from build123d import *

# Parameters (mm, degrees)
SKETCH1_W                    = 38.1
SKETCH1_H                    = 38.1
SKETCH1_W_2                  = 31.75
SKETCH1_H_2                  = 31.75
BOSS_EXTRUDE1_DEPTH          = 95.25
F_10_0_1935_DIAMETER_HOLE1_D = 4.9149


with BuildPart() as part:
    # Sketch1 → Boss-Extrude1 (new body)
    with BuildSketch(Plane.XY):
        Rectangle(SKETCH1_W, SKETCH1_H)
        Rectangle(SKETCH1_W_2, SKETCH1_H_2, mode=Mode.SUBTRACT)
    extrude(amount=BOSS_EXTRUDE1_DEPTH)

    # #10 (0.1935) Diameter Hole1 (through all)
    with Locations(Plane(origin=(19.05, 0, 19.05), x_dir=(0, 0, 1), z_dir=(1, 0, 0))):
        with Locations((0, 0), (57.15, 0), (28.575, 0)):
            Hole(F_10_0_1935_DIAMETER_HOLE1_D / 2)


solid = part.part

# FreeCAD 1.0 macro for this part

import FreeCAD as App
import Part
import Sketcher

V = App.Vector
Q = App.Units.Quantity


def add_polygon(sketch, points):
    """Adds a closed chain of lines whose ends are joined by coincident constraints."""
    first, n = sketch.GeometryCount, len(points)
    for a, b in zip(points, points[1:] + points[:1]):
        sketch.addGeometry(Part.LineSegment(App.Vector(*a, 0), App.Vector(*b, 0)), False)
    for i in range(n):
        sketch.addConstraint(Sketcher.Constraint("Coincident", first + i, 2, first + (i + 1) % n, 1))

doc = App.newDocument("Part")
params = doc.addObject("Spreadsheet::Sheet", "Params")
for row, (alias, value) in enumerate([
    ("sketch1_width", "1.5 in"),
    ("sketch1_width2", "1.25 in"),
    ("pad1_length", "3.75 in"),
    ("hole_diameter", "0.1935 in"),
], start=1):
    params.set(f"A{row}", alias)
    params.set(f"B{row}", "=" + value)
    params.setAlias(f"B{row}", alias)

body = doc.addObject("PartDesign::Body", "Body")

# Sketch on XY plane
sketch1 = body.newObject("Sketcher::SketchObject", "Sketch")
sketch1.AttachmentSupport = (doc.getObject("XY_Plane"), [""])
sketch1.MapMode = "FlatFace"
add_polygon(sketch1, [(-19, 19), (-19, -19), (19, -19), (19, 19)])  # lines 0-3
add_polygon(sketch1, [(16, -16), (-16, -16), (-16, 16), (16, 16)])  # lines 4-7
sketch1.addConstraint(Sketcher.Constraint("Vertical", 0))
sketch1.addConstraint(Sketcher.Constraint("Horizontal", 1))
sketch1.addConstraint(Sketcher.Constraint("Vertical", 2))
sketch1.addConstraint(Sketcher.Constraint("Horizontal", 3))
sketch1.addConstraint(Sketcher.Constraint("Horizontal", 4))
sketch1.addConstraint(Sketcher.Constraint("Vertical", 5))
sketch1.addConstraint(Sketcher.Constraint("Horizontal", 6))
sketch1.addConstraint(Sketcher.Constraint("Vertical", 7))
sketch1.addConstraint(Sketcher.Constraint("Symmetric", 0, 2, 2, 2, -1, 1))
sketch1.addConstraint(Sketcher.Constraint("Symmetric", 4, 2, 6, 2, -1, 1))
sketch1.addConstraint(Sketcher.Constraint("Equal", 3, 0))
sketch1.addConstraint(Sketcher.Constraint("Equal", 6, 5))
sketch1.addConstraint(Sketcher.Constraint("DistanceX", 1, 1, 1, 2, Q("1.5 in")))
sketch1.addConstraint(Sketcher.Constraint("DistanceX", 4, 2, 4, 1, Q("1.25 in")))
sketch1.setExpression("Constraints[20]", "Params.sketch1_width")
sketch1.setExpression("Constraints[21]", "Params.sketch1_width2")
pad1 = body.newObject("PartDesign::Pad", "Pad")
pad1.Profile = sketch1
pad1.setExpression("Length", "Params.pad1_length")

# Sketch on YZ plane
sketch2 = body.newObject("Sketcher::SketchObject", "Sketch001")
sketch2.AttachmentSupport = (doc.getObject("YZ_Plane"), [""])
sketch2.MapMode = "FlatFace"
sketch2.AttachmentOffset = App.Placement(V(0, 0, 0.75 * 25.4), App.Rotation())
sketch2.addGeometry(Part.Circle(V(0, 19.1, 0), V(0, 0, 1), 2.5), False)
sketch2.addGeometry(Part.Circle(V(0, 76.2, 0), V(0, 0, 1), 2.5), False)
sketch2.addGeometry(Part.Circle(V(0, 47.6, 0), V(0, 0, 1), 2.5), False)
sketch2.addConstraint(Sketcher.Constraint("Equal", 0, 1))
sketch2.addConstraint(Sketcher.Constraint("Equal", 1, 2))
sketch2.addConstraint(Sketcher.Constraint("PointOnObject", 0, 3, -2))
sketch2.addConstraint(Sketcher.Constraint("PointOnObject", 1, 3, -2))
sketch2.addConstraint(Sketcher.Constraint("PointOnObject", 2, 3, -2))
sketch2.addConstraint(Sketcher.Constraint("DistanceY", -1, 1, 1, 3, Q("3 in")))
sketch2.addConstraint(Sketcher.Constraint("Diameter", 0, Q("0.1935 in")))
sketch2.addConstraint(Sketcher.Constraint("DistanceY", -1, 1, 0, 3, Q("0.75 in")))
sketch2.addConstraint(Sketcher.Constraint("DistanceY", -1, 1, 2, 3, Q("1.875 in")))
doc.recompute()
hole = body.newObject("PartDesign::Hole", "Hole")
hole.Profile = sketch2
hole.ThreadType = "None"
hole.setExpression("Diameter", "Params.hole_diameter")
hole.DepthType = "ThroughAll"

doc.recompute()
